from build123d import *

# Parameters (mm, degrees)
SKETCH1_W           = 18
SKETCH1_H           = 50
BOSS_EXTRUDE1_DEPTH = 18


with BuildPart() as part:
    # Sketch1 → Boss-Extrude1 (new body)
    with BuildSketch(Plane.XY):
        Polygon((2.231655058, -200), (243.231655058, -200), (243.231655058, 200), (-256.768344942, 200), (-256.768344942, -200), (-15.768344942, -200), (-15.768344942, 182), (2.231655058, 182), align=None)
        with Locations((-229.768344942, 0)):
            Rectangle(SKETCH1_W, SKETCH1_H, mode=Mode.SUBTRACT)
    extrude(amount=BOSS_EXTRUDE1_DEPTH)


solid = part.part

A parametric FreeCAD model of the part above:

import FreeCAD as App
import Part
import Sketcher

V = App.Vector
Q = App.Units.Quantity

doc = App.newDocument("Part")
body = doc.addObject("PartDesign::Body", "Body")

sketch1 = body.newObject("Sketcher::SketchObject", "Sketch")
sketch1.AttachmentSupport = (doc.getObject("XY_Plane"), [""])
sketch1.MapMode = "FlatFace"
sketch1.addGeometry([
    Part.LineSegment(V(2, -200, 0), V(243, -200, 0)),
    Part.LineSegment(V(243, -200, 0), V(243, 200, 0)),
    Part.LineSegment(V(243, 200, 0), V(-257, 200, 0)),
    Part.LineSegment(V(-257, 200, 0), V(-257, -200, 0)),
    Part.LineSegment(V(-257, -200, 0), V(-16, -200, 0)),
    Part.LineSegment(V(-16, -200, 0), V(-16, 182, 0)),
    Part.LineSegment(V(-16, 182, 0), V(2, 182, 0)),
    Part.LineSegment(V(2, 182, 0), V(2, -200, 0)),
    Part.LineSegment(V(-221, -25, 0), V(-239, -25, 0)),
    Part.LineSegment(V(-239, -25, 0), V(-239, 25, 0)),
    Part.LineSegment(V(-239, 25, 0), V(-221, 25, 0)),
    Part.LineSegment(V(-221, 25, 0), V(-221, -25, 0)),
], False)
sketch1.addConstraint([
    Sketcher.Constraint("Coincident", 0, 2, 1, 1),
    Sketcher.Constraint("Coincident", 1, 2, 2, 1),
    Sketcher.Constraint("Coincident", 2, 2, 3, 1),
    Sketcher.Constraint("Coincident", 3, 2, 4, 1),
    Sketcher.Constraint("Coincident", 4, 2, 5, 1),
    Sketcher.Constraint("Coincident", 5, 2, 6, 1),
    Sketcher.Constraint("Coincident", 6, 2, 7, 1),
    Sketcher.Constraint("Coincident", 7, 2, 0, 1),
    Sketcher.Constraint("Coincident", 8, 2, 9, 1),
    Sketcher.Constraint("Coincident", 9, 2, 10, 1),
    Sketcher.Constraint("Coincident", 10, 2, 11, 1),
    Sketcher.Constraint("Coincident", 11, 2, 8, 1),
    Sketcher.Constraint("Horizontal", 0),
    Sketcher.Constraint("Vertical", 1),
    Sketcher.Constraint("Horizontal", 2),
    Sketcher.Constraint("Vertical", 3),
    Sketcher.Constraint("Horizontal", 4),
    Sketcher.Constraint("Vertical", 5),
    Sketcher.Constraint("Horizontal", 6),
    Sketcher.Constraint("Vertical", 7),
    Sketcher.Constraint("Horizontal", 8),
    Sketcher.Constraint("Vertical", 9),
    Sketcher.Constraint("Horizontal", 10),
    Sketcher.Constraint("Vertical", 11),
    Sketcher.Constraint("Horizontal", 0, 2, 3, 2),
    Sketcher.Constraint("Equal", 0, 4),
    Sketcher.Constraint("Equal", 6, 8),
    Sketcher.Constraint("DistanceX", 0, 1, 0, 2, Q("241 mm")),
    Sketcher.Constraint("DistanceX", 2, 2, 2, 1, Q("500 mm")),
    Sketcher.Constraint("DistanceY", 1, 1, 1, 2, Q("400 mm")),
    Sketcher.Constraint("DistanceY", 5, 1, 5, 2, Q("382 mm")),
    Sketcher.Constraint("DistanceY", 9, 1, 9, 2, Q("50 mm")),
    Sketcher.Constraint("DistanceY", 0, 2, -1, 1, Q("200 mm")),
    Sketcher.Constraint("DistanceY", 8, 2, -1, 1, Q("25 mm")),
    Sketcher.Constraint("DistanceX", 3, 2, 8, 2, Q("18 mm")),
    Sketcher.Constraint("DistanceX", -1, 1, 0, 2, Q("243.231655 mm")),
])
pad1 = body.newObject("PartDesign::Pad", "Pad")
pad1.Profile = sketch1
pad1.Length = 18

doc.recompute()
